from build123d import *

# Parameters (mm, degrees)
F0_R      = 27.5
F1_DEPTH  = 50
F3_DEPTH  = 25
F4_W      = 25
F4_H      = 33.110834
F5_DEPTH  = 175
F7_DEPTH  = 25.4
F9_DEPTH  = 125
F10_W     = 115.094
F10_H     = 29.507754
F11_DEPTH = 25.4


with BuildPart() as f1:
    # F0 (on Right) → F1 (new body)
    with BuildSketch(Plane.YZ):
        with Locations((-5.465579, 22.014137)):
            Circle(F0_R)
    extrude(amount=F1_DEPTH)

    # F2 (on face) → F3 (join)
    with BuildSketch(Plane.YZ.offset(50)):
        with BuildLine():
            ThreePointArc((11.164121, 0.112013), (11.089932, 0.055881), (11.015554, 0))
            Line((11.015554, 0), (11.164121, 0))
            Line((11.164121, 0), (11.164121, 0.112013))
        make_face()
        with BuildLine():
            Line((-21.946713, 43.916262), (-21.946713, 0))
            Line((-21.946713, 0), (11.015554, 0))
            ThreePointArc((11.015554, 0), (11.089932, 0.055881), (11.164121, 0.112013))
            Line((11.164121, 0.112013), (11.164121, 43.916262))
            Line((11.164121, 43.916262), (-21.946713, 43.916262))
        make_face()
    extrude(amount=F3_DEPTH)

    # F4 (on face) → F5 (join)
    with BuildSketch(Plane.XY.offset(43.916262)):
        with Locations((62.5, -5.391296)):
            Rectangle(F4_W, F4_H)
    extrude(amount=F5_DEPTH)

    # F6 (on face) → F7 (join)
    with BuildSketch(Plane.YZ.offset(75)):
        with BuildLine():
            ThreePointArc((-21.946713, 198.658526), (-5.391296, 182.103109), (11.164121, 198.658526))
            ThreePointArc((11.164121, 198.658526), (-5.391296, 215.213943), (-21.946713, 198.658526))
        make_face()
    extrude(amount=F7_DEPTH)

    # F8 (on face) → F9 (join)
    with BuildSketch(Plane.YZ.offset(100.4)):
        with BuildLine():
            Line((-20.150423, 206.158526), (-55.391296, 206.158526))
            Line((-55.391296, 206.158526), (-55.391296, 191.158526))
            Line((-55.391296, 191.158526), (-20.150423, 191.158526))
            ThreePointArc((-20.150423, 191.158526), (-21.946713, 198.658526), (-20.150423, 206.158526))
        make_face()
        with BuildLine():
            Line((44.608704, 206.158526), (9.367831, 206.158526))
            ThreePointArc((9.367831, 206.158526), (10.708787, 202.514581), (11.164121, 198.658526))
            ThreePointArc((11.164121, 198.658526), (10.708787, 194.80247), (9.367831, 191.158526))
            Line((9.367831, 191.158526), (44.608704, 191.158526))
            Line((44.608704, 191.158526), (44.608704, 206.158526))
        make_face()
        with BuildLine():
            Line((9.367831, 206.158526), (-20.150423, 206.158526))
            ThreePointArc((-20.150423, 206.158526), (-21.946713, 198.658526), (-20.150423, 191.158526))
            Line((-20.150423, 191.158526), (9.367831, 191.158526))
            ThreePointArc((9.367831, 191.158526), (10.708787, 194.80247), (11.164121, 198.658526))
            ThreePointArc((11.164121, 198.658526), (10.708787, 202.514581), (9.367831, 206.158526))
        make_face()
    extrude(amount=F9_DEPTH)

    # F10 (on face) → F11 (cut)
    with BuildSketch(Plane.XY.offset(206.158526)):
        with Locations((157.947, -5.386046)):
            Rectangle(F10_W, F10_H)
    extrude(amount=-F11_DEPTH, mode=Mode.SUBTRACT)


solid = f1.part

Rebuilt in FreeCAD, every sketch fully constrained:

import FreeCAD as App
import Part
import Sketcher

V = App.Vector


def add_polygon(sketch, points):
    """Adds a closed chain of lines whose ends are joined by coincident constraints."""
    first, n = sketch.GeometryCount, len(points)
    for a, b in zip(points, points[1:] + points[:1]):
        sketch.addGeometry(Part.LineSegment(App.Vector(*a, 0), App.Vector(*b, 0)), False)
    for i in range(n):
        sketch.addConstraint(Sketcher.Constraint("Coincident", first + i, 2, first + (i + 1) % n, 1))

doc = App.newDocument("Part")
body = doc.addObject("PartDesign::Body", "Body")

sketch1 = body.newObject("Sketcher::SketchObject", "Sketch")
sketch1.AttachmentSupport = (doc.getObject("YZ_Plane"), [""])
sketch1.MapMode = "FlatFace"
sketch1.addGeometry(Part.Circle(V(-5, 22, 0), V(0, 0, 1), 28), False)
sketch1.addConstraint(Sketcher.Constraint("Diameter", 0, 55.0))
sketch1.addConstraint(Sketcher.Constraint("DistanceX", 0, 3, -1, 1, 5.465579))
sketch1.addConstraint(Sketcher.Constraint("DistanceY", -1, 1, 0, 3, 22.014137))
pad1 = body.newObject("PartDesign::Pad", "Pad")
pad1.Profile = sketch1
pad1.Length = 50

sketch2 = body.newObject("Sketcher::SketchObject", "Sketch001")
sketch2.AttachmentSupport = (doc.getObject("YZ_Plane"), [""])
sketch2.MapMode = "FlatFace"
sketch2.AttachmentOffset = App.Placement(V(0, 0, 50), App.Rotation())
add_polygon(sketch2, [(11, 0), (11, 44), (-22, 44), (-22, 0)])
sketch2.addConstraint(Sketcher.Constraint("Vertical", 0))
sketch2.addConstraint(Sketcher.Constraint("Horizontal", 1))
sketch2.addConstraint(Sketcher.Constraint("Vertical", 2))
sketch2.addConstraint(Sketcher.Constraint("Horizontal", 3))
sketch2.addConstraint(Sketcher.Constraint("PointOnObject", 2, 2, -1))
sketch2.addConstraint(Sketcher.Constraint("DistanceX", 1, 2, 1, 1, 33.110834))
sketch2.addConstraint(Sketcher.Constraint("DistanceY", 0, 1, 0, 2, 43.916262))
sketch2.addConstraint(Sketcher.Constraint("DistanceX", -1, 1, 0, 2, 11.164121))
pad2 = body.newObject("PartDesign::Pad", "Pad001")
pad2.Profile = sketch2
pad2.Length = 25

sketch3 = body.newObject("Sketcher::SketchObject", "Sketch002")
sketch3.AttachmentSupport = (doc.getObject("XY_Plane"), [""])
sketch3.MapMode = "FlatFace"
sketch3.AttachmentOffset = App.Placement(V(0, 0, 43.916262), App.Rotation())
add_polygon(sketch3, [(50, 11), (50, -22), (75, -22), (75, 11)])
sketch3.addConstraint(Sketcher.Constraint("Vertical", 0))
sketch3.addConstraint(Sketcher.Constraint("Horizontal", 1))
sketch3.addConstraint(Sketcher.Constraint("Vertical", 2))
sketch3.addConstraint(Sketcher.Constraint("Horizontal", 3))
sketch3.addConstraint(Sketcher.Constraint("DistanceX", 1, 1, 1, 2, 25.0))
sketch3.addConstraint(Sketcher.Constraint("DistanceX", -1, 1, 0, 2, 50.0))
sketch3.addConstraint(Sketcher.Constraint("DistanceY", 0, 2, 0, 1, 33.110834))
sketch3.addConstraint(Sketcher.Constraint("DistanceY", -1, 1, 2, 2, 11.164121))
pad3 = body.newObject("PartDesign::Pad", "Pad002")
pad3.Profile = sketch3
pad3.Length = 175

sketch4 = body.newObject("Sketcher::SketchObject", "Sketch003")
sketch4.AttachmentSupport = (doc.getObject("YZ_Plane"), [""])
sketch4.MapMode = "FlatFace"
sketch4.AttachmentOffset = App.Placement(V(0, 0, 75), App.Rotation())
sketch4.addGeometry(Part.Circle(V(-5, 199, 0), V(0, 0, 1), 17), False)
sketch4.addConstraint(Sketcher.Constraint("Diameter", 0, 33.110834))
sketch4.addConstraint(Sketcher.Constraint("DistanceX", 0, 3, -1, 1, 5.391296))
sketch4.addConstraint(Sketcher.Constraint("DistanceY", -1, 1, 0, 3, 198.658526))
pad4 = body.newObject("PartDesign::Pad", "Pad003")
pad4.Profile = sketch4
pad4.Length = 25.4

sketch5 = body.newObject("Sketcher::SketchObject", "Sketch004")
sketch5.AttachmentSupport = (doc.getObject("YZ_Plane"), [""])
sketch5.MapMode = "FlatFace"
sketch5.AttachmentOffset = App.Placement(V(0, 0, 100.4), App.Rotation())
add_polygon(sketch5, [(-55, 206), (-55, 191), (45, 191), (45, 206)])
sketch5.addConstraint(Sketcher.Constraint("Vertical", 0))
sketch5.addConstraint(Sketcher.Constraint("Horizontal", 1))
sketch5.addConstraint(Sketcher.Constraint("Vertical", 2))
sketch5.addConstraint(Sketcher.Constraint("Horizontal", 3))
sketch5.addConstraint(Sketcher.Constraint("DistanceX", 1, 1, 1, 2, 100.0))
sketch5.addConstraint(Sketcher.Constraint("DistanceY", 0, 2, 0, 1, 15.0))
sketch5.addConstraint(Sketcher.Constraint("DistanceX", 0, 2, -1, 1, 55.391296))
sketch5.addConstraint(Sketcher.Constraint("DistanceY", -1, 1, 0, 2, 191.158526))
pad5 = body.newObject("PartDesign::Pad", "Pad004")
pad5.Profile = sketch5
pad5.Length = 125

sketch6 = body.newObject("Sketcher::SketchObject", "Sketch005")
sketch6.AttachmentSupport = (doc.getObject("XY_Plane"), [""])
sketch6.MapMode = "FlatFace"
sketch6.AttachmentOffset = App.Placement(V(0, 0, 206.158526), App.Rotation())
add_polygon(sketch6, [(100, 9), (100, -20), (215, -20), (215, 9)])
sketch6.addConstraint(Sketcher.Constraint("Vertical", 0))
sketch6.addConstraint(Sketcher.Constraint("Horizontal", 1))
sketch6.addConstraint(Sketcher.Constraint("Vertical", 2))
sketch6.addConstraint(Sketcher.Constraint("Horizontal", 3))
sketch6.addConstraint(Sketcher.Constraint("DistanceX", -1, 1, 0, 2, 100.4))
sketch6.addConstraint(Sketcher.Constraint("DistanceX", 1, 1, 1, 2, 115.094))
sketch6.addConstraint(Sketcher.Constraint("DistanceY", 0, 2, 0, 1, 29.507754))
sketch6.addConstraint(Sketcher.Constraint("DistanceY", -1, 1, 2, 2, 9.367831))
pocket1 = body.newObject("PartDesign::Pocket", "Pocket")
pocket1.Profile = sketch6
pocket1.Length = 25.4

doc.recompute()
